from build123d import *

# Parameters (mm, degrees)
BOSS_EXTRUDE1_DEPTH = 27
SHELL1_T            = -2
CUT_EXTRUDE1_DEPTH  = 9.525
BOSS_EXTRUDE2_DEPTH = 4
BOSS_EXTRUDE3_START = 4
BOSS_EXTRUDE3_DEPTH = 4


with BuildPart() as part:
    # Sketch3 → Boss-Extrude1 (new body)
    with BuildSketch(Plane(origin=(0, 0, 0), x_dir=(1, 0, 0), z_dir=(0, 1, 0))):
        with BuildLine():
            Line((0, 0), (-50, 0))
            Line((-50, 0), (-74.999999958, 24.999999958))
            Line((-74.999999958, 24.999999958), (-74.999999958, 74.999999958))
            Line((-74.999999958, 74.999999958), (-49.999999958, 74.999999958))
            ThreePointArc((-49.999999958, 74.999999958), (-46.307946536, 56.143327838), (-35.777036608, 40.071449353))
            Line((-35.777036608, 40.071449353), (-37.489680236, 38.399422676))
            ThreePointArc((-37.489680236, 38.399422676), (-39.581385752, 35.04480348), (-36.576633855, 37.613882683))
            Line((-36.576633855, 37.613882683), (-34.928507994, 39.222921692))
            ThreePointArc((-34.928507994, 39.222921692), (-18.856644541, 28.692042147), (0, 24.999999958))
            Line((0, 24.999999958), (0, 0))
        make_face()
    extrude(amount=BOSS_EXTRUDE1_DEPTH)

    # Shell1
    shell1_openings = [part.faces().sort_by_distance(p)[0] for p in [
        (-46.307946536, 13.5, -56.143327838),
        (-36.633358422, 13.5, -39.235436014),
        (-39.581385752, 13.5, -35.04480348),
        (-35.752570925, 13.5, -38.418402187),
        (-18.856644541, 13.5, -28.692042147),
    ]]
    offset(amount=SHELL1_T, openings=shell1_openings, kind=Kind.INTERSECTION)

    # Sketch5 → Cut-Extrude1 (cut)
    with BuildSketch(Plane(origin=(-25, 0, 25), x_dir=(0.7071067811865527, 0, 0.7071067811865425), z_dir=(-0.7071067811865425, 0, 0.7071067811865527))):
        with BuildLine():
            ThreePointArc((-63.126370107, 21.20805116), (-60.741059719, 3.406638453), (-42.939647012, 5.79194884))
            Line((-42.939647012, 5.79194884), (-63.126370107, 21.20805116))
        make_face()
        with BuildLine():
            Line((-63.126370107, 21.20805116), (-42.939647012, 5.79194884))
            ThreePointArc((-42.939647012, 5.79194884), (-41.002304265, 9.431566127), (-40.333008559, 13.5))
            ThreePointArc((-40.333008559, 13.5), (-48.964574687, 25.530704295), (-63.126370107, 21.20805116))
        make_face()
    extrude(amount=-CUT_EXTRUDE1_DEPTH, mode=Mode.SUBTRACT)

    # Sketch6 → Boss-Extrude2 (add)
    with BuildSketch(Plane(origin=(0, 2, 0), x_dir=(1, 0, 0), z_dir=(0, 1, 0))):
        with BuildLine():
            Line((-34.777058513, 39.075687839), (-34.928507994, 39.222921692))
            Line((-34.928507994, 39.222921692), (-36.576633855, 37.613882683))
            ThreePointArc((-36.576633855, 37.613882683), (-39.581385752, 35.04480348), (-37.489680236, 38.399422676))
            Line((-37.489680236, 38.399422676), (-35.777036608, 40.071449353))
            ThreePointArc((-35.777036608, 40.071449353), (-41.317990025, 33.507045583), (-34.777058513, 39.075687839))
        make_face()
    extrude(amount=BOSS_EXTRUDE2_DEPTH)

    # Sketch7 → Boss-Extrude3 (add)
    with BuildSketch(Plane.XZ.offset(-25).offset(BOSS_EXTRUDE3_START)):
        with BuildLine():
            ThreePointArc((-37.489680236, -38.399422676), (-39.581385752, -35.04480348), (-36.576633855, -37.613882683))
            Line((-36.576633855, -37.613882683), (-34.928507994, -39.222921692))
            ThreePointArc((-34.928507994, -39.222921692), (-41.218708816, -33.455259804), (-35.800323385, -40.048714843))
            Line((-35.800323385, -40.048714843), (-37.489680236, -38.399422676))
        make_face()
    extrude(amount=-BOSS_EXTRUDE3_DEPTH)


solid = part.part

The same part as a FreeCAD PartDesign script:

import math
import FreeCAD as App
import Part
import Sketcher
from FreeCAD import Vector


def faces_at(feature, points):
    """Names of the faces that lie closest to the given points."""
    faces = feature.Shape.Faces
    near = lambda p: min(range(len(faces)), key=lambda i: faces[i].distToShape(Part.Vertex(*p))[0])
    return sorted({f"Face{near(p) + 1}" for p in points})

doc = App.newDocument("Part")
body = doc.addObject("PartDesign::Body", "Body")

sketch1 = body.newObject("Sketcher::SketchObject", "Sketch")
sketch1.AttachmentSupport = (doc.getObject("XZ_Plane"), [""])
sketch1.MapMode = "FlatFace"
sketch1.addGeometry([
    Part.LineSegment(Vector(-50, 0, 0), Vector(0, 0, 0)),
    Part.LineSegment(Vector(0, 0, 0), Vector(0, -25, 0)),
    Part.ArcOfCircle(Part.Circle(Vector(0, -75, 0), Vector(0, 0, 1), 50), math.radians(90), math.radians(134)),
    Part.LineSegment(Vector(-34.9, -39.2, 0), Vector(-36.6, -37.6, 0)),
    Part.ArcOfCircle(Part.Circle(Vector(-38.3, -36.6, 0), Vector(0, 0, 1), 2), math.radians(-32), math.radians(293)),
    Part.LineSegment(Vector(-37.5, -38.4, 0), Vector(-35.8, -40.1, 0)),
    Part.ArcOfCircle(Part.Circle(Vector(0, -75, 0), Vector(0, 0, 1), 50), math.radians(136), math.radians(180)),
    Part.LineSegment(Vector(-50, -75, 0), Vector(-75, -75, 0)),
    Part.LineSegment(Vector(-75, -75, 0), Vector(-75, -25, 0)),
    Part.LineSegment(Vector(-75, -25, 0), Vector(-50, 0, 0)),
], False)
sketch1.addConstraint([
    Sketcher.Constraint("Coincident", 0, 2, 1, 1),
    Sketcher.Constraint("Coincident", 1, 2, 2, 1),
    Sketcher.Constraint("Coincident", 2, 2, 3, 1),
    Sketcher.Constraint("Coincident", 3, 2, 4, 1),
    Sketcher.Constraint("Coincident", 4, 2, 5, 1),
    Sketcher.Constraint("Coincident", 5, 2, 6, 1),
    Sketcher.Constraint("Coincident", 6, 2, 7, 1),
    Sketcher.Constraint("Coincident", 7, 2, 8, 1),
    Sketcher.Constraint("Coincident", 8, 2, 9, 1),
    Sketcher.Constraint("Coincident", 9, 2, 0, 1),
    Sketcher.Constraint("Horizontal", 0),
    Sketcher.Constraint("Vertical", 1),
    Sketcher.Constraint("Horizontal", 7),
    Sketcher.Constraint("Vertical", 8),
    Sketcher.Constraint("Coincident", 0, 2, -1, 1),
    Sketcher.Constraint("Coincident", 6, 3, 2, 3),
    Sketcher.Constraint("Equal", 2, 6),
    Sketcher.Constraint("PointOnObject", 2, 3, -2),
    Sketcher.Constraint("Parallel", 3, 5),
    Sketcher.Constraint("Horizontal", 2, 3, 6, 2),
    Sketcher.Constraint("Horizontal", 1, 2, 8, 2),
    Sketcher.Constraint("Vertical", 6, 2, 9, 2),
    Sketcher.Constraint("Equal", 7, 1),
    Sketcher.Constraint("Radius", 2, 50.0),
    Sketcher.Constraint("Radius", 4, 2.0),
    Sketcher.Constraint("DistanceX", 7, 2, 7, 1, 25.0),
    Sketcher.Constraint("DistanceX", 4, 3, -1, 1, 38.277002),
    Sketcher.Constraint("DistanceY", 2, 2, 4, 2, 0.823499),
    Sketcher.Constraint("Distance", 3, 2.303329),
    Sketcher.Constraint("DistanceY", 4, 3, -1, 1, 36.560911),
    Sketcher.Constraint("DistanceY", 2, 2, -1, 1, 39.222922),
])
pad1 = body.newObject("PartDesign::Pad", "Pad")
pad1.Profile = sketch1
pad1.Length = 27
pad1.Reversed = True
doc.recompute()

thickness = body.newObject("PartDesign::Thickness", "Thickness")
thickness.Base = (pad1, faces_at(pad1, [
    (-46.308, 13.5, -56.143),
    (-36.633, 13.5, -39.235),
    (-39.581, 13.5, -35.045),
    (-35.753, 13.5, -38.418),
    (-18.857, 13.5, -28.692),
]))
thickness.Value = 2
thickness.Reversed = True
thickness.Join = "Intersection"

sketch2 = body.newObject("Sketcher::SketchObject", "Sketch001")
sketch2.Placement = App.Placement(Vector(-25, 0, 25), App.Rotation(Vector(0.707106781, 0, 0.707106781), Vector(0, 0.999999999, 0), Vector(-0.707106781, 0, 0.707106781), "ZXY"))
sketch2.addGeometry([
    Part.ArcOfCircle(Part.Circle(Vector(-53, 13, 0), Vector(0, 0, 1), 13), math.radians(143), math.radians(323)),
    Part.ArcOfCircle(Part.Circle(Vector(-53, 13, 0), Vector(0, 0, 1), 13), math.radians(-37), math.radians(0)),
    Part.ArcOfCircle(Part.Circle(Vector(-53, 13, 0), Vector(0, 0, 1), 13), math.radians(0), math.radians(143)),
], False)
sketch2.addConstraint([
    Sketcher.Constraint("Tangent", 0, 2, 1, 1),
    Sketcher.Constraint("Tangent", 1, 2, 2, 1),
    Sketcher.Constraint("Tangent", 2, 2, 0, 1),
    Sketcher.Constraint("Horizontal", 2, 3, 1, 2),
    Sketcher.Constraint("Radius", 0, 12.7),
    Sketcher.Constraint("DistanceY", -1, 1, 0, 3, 13.5),
    Sketcher.Constraint("DistanceX", 0, 3, -1, 1, 53.033009),
    Sketcher.Constraint("DistanceY", -1, 1, 0, 2, 5.791949),
    Sketcher.Constraint("DistanceX", 2, 2, -1, 1, 63.12637),
])
pocket1 = body.newObject("PartDesign::Pocket", "Pocket")
pocket1.Profile = sketch2
pocket1.Length = 9.525

sketch3 = body.newObject("Sketcher::SketchObject", "Sketch002")
sketch3.AttachmentSupport = (doc.getObject("XZ_Plane"), [""])
sketch3.MapMode = "FlatFace"
sketch3.AttachmentOffset = App.Placement(Vector(0, 0, -2), App.Rotation())
sketch3.addGeometry([
    Part.LineSegment(Vector(-34.78, -39.08, 0), Vector(-34.93, -39.22, 0)),
    Part.LineSegment(Vector(-34.93, -39.22, 0), Vector(-36.58, -37.61, 0)),
    Part.ArcOfCircle(Part.Circle(Vector(-38.28, -36.56, 0), Vector(0, 0, 1), 2), math.radians(-32), math.radians(293)),
    Part.LineSegment(Vector(-37.49, -38.4, 0), Vector(-35.78, -40.07, 0)),
    Part.ArcOfCircle(Part.Circle(Vector(-38.28, -36.56, 0), Vector(0, 0, 1), 4.31), math.radians(-36), math.radians(305)),
], False)
sketch3.addConstraint([
    Sketcher.Constraint("Coincident", 0, 2, 1, 1),
    Sketcher.Constraint("Coincident", 1, 2, 2, 1),
    Sketcher.Constraint("Coincident", 2, 2, 3, 1),
    Sketcher.Constraint("Coincident", 3, 2, 4, 2),
    Sketcher.Constraint("Coincident", 4, 1, 0, 1),
    Sketcher.Constraint("Coincident", 4, 3, 2, 3),
    Sketcher.Constraint("Parallel", 1, 3),
    Sketcher.Constraint("Radius", 2, 2.0),
    Sketcher.Constraint("DistanceX", 2, 3, -1, 1, 38.277002),
    Sketcher.Constraint("Radius", 4, 4.309722),
    Sketcher.Constraint("DistanceY", 0, 2, 2, 2, 0.823499),
    Sketcher.Constraint("Distance", 1, 2.303329),
    Sketcher.Constraint("DistanceY", 2, 3, -1, 1, 36.560911),
    Sketcher.Constraint("DistanceY", 0, 2, -1, 1, 39.222922),
    Sketcher.Constraint("DistanceY", 3, 2, -1, 1, 40.071449),
    Sketcher.Constraint("DistanceX", 4, 1, -1, 1, 34.777059),
])
pad2 = body.newObject("PartDesign::Pad", "Pad001")
pad2.Profile = sketch3
pad2.Length = 4
pad2.Reversed = True

sketch4 = body.newObject("Sketcher::SketchObject", "Sketch003")
sketch4.AttachmentSupport = (doc.getObject("XZ_Plane"), [""])
sketch4.MapMode = "FlatFace"
sketch4.AttachmentOffset = App.Placement(Vector(0, 0, -21), App.Rotation())
sketch4.addGeometry([
    Part.ArcOfCircle(Part.Circle(Vector(-38.3, -36.6, 0), Vector(0, 0, 1), 2), math.radians(-32), math.radians(293)),
    Part.LineSegment(Vector(-36.6, -37.6, 0), Vector(-34.9, -39.2, 0)),
    Part.ArcOfCircle(Part.Circle(Vector(-38.3, -36.6, 0), Vector(0, 0, 1), 4.3), math.radians(-38), math.radians(305)),
    Part.LineSegment(Vector(-35.8, -40, 0), Vector(-37.5, -38.4, 0)),
], False)
sketch4.addConstraint([
    Sketcher.Constraint("Coincident", 0, 1, 1, 1),
    Sketcher.Constraint("Coincident", 1, 2, 2, 1),
    Sketcher.Constraint("Coincident", 2, 2, 3, 1),
    Sketcher.Constraint("Coincident", 3, 2, 0, 2),
    Sketcher.Constraint("Coincident", 2, 3, 0, 3),
    Sketcher.Constraint("Parallel", 1, 3),
    Sketcher.Constraint("Radius", 0, 2.0),
    Sketcher.Constraint("Radius", 2, 4.277699),
    Sketcher.Constraint("DistanceX", 0, 3, -1, 1, 38.277002),
    Sketcher.Constraint("DistanceY", 1, 2, 3, 2, 0.823499),
    Sketcher.Constraint("Distance", 1, 2.303329),
    Sketcher.Constraint("Distance", 3, 2.360951),
    Sketcher.Constraint("DistanceY", 0, 3, -1, 1, 36.560911),
])
pad3 = body.newObject("PartDesign::Pad", "Pad002")
pad3.Profile = sketch4
pad3.Length = 4
pad3.Reversed = True

doc.recompute()
